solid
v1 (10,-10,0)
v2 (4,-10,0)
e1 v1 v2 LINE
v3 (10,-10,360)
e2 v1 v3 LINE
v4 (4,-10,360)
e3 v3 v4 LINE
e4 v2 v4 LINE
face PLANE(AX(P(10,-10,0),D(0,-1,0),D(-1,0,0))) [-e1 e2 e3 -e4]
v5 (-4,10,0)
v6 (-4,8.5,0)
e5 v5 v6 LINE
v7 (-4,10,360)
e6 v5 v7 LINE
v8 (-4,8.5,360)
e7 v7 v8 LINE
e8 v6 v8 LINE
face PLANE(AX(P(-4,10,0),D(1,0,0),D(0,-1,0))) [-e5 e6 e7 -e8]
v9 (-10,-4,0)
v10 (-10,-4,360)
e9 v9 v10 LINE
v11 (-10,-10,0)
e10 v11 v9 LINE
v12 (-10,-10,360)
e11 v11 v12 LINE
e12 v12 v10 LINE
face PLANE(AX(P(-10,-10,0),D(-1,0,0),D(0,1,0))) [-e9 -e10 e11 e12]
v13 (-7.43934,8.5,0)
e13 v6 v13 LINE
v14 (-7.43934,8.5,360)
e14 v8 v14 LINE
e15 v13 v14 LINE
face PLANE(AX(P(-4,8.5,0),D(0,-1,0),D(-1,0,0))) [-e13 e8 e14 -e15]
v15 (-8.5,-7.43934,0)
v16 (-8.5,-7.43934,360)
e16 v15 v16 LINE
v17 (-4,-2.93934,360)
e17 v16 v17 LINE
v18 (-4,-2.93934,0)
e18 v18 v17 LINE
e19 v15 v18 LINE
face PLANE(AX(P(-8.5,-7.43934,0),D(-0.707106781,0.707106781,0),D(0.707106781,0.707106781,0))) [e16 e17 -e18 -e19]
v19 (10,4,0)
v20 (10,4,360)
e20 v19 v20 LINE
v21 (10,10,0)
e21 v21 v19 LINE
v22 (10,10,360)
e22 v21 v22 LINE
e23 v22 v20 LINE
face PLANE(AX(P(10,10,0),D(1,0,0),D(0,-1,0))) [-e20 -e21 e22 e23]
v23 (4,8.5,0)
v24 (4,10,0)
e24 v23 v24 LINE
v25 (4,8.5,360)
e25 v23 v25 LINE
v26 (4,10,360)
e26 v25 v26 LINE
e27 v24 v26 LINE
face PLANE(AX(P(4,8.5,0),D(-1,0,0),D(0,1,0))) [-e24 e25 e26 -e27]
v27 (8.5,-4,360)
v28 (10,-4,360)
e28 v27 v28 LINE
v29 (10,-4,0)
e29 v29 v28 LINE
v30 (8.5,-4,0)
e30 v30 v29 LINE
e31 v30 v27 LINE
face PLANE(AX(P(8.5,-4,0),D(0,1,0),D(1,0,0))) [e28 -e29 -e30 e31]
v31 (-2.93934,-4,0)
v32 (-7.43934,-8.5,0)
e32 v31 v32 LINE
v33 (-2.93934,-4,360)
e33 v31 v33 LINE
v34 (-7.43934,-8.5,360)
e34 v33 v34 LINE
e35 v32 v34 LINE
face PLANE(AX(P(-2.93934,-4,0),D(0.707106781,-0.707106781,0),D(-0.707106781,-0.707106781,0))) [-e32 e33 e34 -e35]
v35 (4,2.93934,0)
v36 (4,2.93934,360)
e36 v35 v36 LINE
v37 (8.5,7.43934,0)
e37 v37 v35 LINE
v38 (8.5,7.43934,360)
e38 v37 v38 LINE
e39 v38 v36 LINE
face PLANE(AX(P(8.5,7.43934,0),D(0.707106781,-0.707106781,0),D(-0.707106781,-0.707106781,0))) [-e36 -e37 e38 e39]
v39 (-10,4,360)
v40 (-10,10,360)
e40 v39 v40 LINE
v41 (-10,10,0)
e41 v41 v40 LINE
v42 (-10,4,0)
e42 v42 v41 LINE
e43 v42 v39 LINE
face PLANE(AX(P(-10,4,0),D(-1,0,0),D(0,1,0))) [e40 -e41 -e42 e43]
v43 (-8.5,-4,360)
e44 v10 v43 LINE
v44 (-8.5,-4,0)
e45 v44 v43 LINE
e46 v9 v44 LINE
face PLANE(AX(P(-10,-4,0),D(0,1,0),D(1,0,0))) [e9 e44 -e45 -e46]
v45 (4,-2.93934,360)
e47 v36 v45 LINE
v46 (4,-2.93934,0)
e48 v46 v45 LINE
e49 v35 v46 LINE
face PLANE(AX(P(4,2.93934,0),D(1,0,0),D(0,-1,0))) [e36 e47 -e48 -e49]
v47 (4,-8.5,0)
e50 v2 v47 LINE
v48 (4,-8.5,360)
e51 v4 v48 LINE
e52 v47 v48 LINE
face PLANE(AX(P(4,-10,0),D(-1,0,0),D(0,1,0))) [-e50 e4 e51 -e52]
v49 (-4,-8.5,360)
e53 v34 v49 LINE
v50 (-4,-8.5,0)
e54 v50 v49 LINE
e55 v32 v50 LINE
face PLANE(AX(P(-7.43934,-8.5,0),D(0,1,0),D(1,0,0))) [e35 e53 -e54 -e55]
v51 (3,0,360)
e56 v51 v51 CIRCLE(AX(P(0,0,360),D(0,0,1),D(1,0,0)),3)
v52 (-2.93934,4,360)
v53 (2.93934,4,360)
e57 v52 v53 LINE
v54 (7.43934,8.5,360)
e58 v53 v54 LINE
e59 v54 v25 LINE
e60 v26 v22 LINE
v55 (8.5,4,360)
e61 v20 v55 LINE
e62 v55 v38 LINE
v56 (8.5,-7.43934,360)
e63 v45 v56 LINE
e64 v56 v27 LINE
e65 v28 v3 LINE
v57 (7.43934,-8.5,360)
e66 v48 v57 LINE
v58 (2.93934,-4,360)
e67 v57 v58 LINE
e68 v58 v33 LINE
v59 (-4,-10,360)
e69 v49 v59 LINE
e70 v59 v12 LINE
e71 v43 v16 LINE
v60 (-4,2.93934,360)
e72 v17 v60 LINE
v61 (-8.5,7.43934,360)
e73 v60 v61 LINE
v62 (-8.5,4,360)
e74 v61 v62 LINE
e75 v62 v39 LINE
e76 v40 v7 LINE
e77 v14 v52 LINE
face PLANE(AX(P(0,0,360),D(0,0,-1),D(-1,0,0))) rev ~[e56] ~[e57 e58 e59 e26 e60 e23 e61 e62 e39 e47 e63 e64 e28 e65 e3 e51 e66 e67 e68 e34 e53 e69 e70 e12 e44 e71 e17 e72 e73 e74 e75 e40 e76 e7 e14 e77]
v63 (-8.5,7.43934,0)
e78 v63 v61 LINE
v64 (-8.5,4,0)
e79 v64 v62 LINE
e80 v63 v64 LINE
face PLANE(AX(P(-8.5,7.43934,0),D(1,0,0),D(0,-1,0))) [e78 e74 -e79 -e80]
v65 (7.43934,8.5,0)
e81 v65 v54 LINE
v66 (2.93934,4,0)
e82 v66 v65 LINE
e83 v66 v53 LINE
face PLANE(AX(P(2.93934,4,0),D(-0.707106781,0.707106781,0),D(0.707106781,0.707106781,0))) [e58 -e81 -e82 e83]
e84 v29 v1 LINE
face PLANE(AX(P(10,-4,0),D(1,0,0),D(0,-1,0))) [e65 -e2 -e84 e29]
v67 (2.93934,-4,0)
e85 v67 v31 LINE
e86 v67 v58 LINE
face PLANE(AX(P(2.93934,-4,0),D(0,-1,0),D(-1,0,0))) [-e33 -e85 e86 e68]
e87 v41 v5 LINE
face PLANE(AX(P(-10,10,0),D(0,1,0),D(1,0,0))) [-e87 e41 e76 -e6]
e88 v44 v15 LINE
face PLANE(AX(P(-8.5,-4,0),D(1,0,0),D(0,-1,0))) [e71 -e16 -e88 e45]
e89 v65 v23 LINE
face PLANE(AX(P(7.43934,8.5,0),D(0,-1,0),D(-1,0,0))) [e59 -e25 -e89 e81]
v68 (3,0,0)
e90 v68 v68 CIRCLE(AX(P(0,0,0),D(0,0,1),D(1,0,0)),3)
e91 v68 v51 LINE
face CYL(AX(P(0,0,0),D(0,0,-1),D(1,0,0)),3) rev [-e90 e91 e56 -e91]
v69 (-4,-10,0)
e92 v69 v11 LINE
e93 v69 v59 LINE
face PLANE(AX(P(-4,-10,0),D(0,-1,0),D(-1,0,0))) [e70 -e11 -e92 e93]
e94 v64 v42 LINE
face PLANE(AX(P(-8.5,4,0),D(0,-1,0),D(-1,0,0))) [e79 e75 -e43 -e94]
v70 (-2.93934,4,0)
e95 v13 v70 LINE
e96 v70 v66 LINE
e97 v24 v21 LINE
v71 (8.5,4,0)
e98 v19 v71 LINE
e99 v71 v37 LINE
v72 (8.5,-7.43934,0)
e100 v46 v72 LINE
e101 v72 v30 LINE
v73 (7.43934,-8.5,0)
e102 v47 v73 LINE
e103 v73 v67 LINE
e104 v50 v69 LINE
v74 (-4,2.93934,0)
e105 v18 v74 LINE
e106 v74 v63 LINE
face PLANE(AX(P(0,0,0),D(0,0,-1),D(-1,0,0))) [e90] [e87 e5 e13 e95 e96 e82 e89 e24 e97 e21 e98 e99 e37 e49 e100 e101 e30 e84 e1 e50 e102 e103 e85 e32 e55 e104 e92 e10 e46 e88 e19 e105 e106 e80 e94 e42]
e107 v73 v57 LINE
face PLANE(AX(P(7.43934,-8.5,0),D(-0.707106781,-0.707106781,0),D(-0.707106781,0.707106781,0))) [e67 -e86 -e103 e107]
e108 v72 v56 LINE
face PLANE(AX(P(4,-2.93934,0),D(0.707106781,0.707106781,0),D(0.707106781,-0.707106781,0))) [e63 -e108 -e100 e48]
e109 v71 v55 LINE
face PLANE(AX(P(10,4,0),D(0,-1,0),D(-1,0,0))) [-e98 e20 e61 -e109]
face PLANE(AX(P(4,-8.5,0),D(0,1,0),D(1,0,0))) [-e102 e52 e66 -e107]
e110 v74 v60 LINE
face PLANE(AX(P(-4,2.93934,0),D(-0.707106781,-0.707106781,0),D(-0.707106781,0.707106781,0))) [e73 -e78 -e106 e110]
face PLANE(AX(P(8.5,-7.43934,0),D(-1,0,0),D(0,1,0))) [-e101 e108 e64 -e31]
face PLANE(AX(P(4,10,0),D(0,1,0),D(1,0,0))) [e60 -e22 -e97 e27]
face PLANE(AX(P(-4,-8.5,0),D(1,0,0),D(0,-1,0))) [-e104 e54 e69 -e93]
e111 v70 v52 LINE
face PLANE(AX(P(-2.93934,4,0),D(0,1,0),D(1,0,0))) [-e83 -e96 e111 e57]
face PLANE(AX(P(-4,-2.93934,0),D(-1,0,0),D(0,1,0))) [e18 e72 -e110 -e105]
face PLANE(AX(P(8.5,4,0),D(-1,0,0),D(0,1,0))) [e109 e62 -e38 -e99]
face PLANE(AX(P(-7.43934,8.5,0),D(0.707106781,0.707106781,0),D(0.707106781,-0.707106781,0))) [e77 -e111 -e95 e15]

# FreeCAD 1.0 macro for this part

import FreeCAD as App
import Part
import Sketcher
from FreeCAD import Vector
Q = App.Units.Quantity

doc = App.newDocument("Part")
params = doc.addObject("Spreadsheet::Sheet", "Params")
for row, (alias, value) in enumerate([
    ("sketch1_diameter", "6 mm"),
    ("sketch1_width", "6 mm"),
    ("sketch1_width2", "1.5 mm"),
    ("pad1_length", "360 mm"),
], start=1):
    params.set(f"A{row}", alias)
    params.set(f"B{row}", "=" + value)
    params.setAlias(f"B{row}", alias)

body = doc.addObject("PartDesign::Body", "Body")

# Sketch on XY plane
sketch1 = body.newObject("Sketcher::SketchObject", "Sketch")
sketch1.AttachmentSupport = (doc.getObject("XY_Plane"), [""])
sketch1.MapMode = "FlatFace"
sketch1.addGeometry([
    Part.LineSegment(Vector(2.9, 4, 0), Vector(-2.9, 4, 0)),  # 0
    Part.LineSegment(Vector(-2.9, 4, 0), Vector(-7.4, 8.5, 0)),  # 1
    Part.LineSegment(Vector(-7.4, 8.5, 0), Vector(-4, 8.5, 0)),  # 2
    Part.LineSegment(Vector(-4, 8.5, 0), Vector(-4, 10, 0)),  # 3
    Part.LineSegment(Vector(-4, 10, 0), Vector(-10, 10, 0)),  # 4
    Part.LineSegment(Vector(-10, 10, 0), Vector(-10, 4, 0)),  # 5
    Part.LineSegment(Vector(-10, 4, 0), Vector(-8.5, 4, 0)),  # 6
    Part.LineSegment(Vector(-8.5, 4, 0), Vector(-8.5, 7.4, 0)),  # 7
    Part.LineSegment(Vector(-8.5, 7.4, 0), Vector(-4, 2.9, 0)),  # 8
    Part.LineSegment(Vector(-4, 2.9, 0), Vector(-4, -2.9, 0)),  # 9
    Part.LineSegment(Vector(-4, -2.9, 0), Vector(-8.5, -7.4, 0)),  # 10
    Part.LineSegment(Vector(-8.5, -7.4, 0), Vector(-8.5, -4, 0)),  # 11
    Part.LineSegment(Vector(-8.5, -4, 0), Vector(-10, -4, 0)),  # 12
    Part.LineSegment(Vector(-10, -4, 0), Vector(-10, -10, 0)),  # 13
    Part.LineSegment(Vector(-10, -10, 0), Vector(-4, -10, 0)),  # 14
    Part.LineSegment(Vector(-4, -10, 0), Vector(-4, -8.5, 0)),  # 15
    Part.LineSegment(Vector(-4, -8.5, 0), Vector(-7.4, -8.5, 0)),  # 16
    Part.LineSegment(Vector(-7.4, -8.5, 0), Vector(-2.9, -4, 0)),  # 17
    Part.LineSegment(Vector(-2.9, -4, 0), Vector(2.9, -4, 0)),  # 18
    Part.LineSegment(Vector(2.9, -4, 0), Vector(7.4, -8.5, 0)),  # 19
    Part.LineSegment(Vector(7.4, -8.5, 0), Vector(4, -8.5, 0)),  # 20
    Part.LineSegment(Vector(4, -8.5, 0), Vector(4, -10, 0)),  # 21
    Part.LineSegment(Vector(4, -10, 0), Vector(10, -10, 0)),  # 22
    Part.LineSegment(Vector(10, -10, 0), Vector(10, -4, 0)),  # 23
    Part.LineSegment(Vector(10, -4, 0), Vector(8.5, -4, 0)),  # 24
    Part.LineSegment(Vector(8.5, -4, 0), Vector(8.5, -7.4, 0)),  # 25
    Part.LineSegment(Vector(8.5, -7.4, 0), Vector(4, -2.9, 0)),  # 26
    Part.LineSegment(Vector(4, -2.9, 0), Vector(4, 2.9, 0)),  # 27
    Part.LineSegment(Vector(4, 2.9, 0), Vector(8.5, 7.4, 0)),  # 28
    Part.LineSegment(Vector(8.5, 7.4, 0), Vector(8.5, 4, 0)),  # 29
    Part.LineSegment(Vector(8.5, 4, 0), Vector(10, 4, 0)),  # 30
    Part.LineSegment(Vector(10, 4, 0), Vector(10, 10, 0)),  # 31
    Part.LineSegment(Vector(10, 10, 0), Vector(4, 10, 0)),  # 32
    Part.LineSegment(Vector(4, 10, 0), Vector(4, 8.5, 0)),  # 33
    Part.LineSegment(Vector(4, 8.5, 0), Vector(7.4, 8.5, 0)),  # 34
    Part.LineSegment(Vector(7.4, 8.5, 0), Vector(2.9, 4, 0)),  # 35
    Part.Circle(Vector(0, 0, 0), Vector(0, 0, 1), 3),  # 36
], False)
sketch1.addConstraint([
    Sketcher.Constraint("Coincident", 0, 2, 1, 1),
    Sketcher.Constraint("Coincident", 1, 2, 2, 1),
    Sketcher.Constraint("Coincident", 2, 2, 3, 1),
    Sketcher.Constraint("Coincident", 3, 2, 4, 1),
    Sketcher.Constraint("Coincident", 4, 2, 5, 1),
    Sketcher.Constraint("Coincident", 5, 2, 6, 1),
    Sketcher.Constraint("Coincident", 6, 2, 7, 1),
    Sketcher.Constraint("Coincident", 7, 2, 8, 1),
    Sketcher.Constraint("Coincident", 8, 2, 9, 1),
    Sketcher.Constraint("Coincident", 9, 2, 10, 1),
    Sketcher.Constraint("Coincident", 10, 2, 11, 1),
    Sketcher.Constraint("Coincident", 11, 2, 12, 1),
    Sketcher.Constraint("Coincident", 12, 2, 13, 1),
    Sketcher.Constraint("Coincident", 13, 2, 14, 1),
    Sketcher.Constraint("Coincident", 14, 2, 15, 1),
    Sketcher.Constraint("Coincident", 15, 2, 16, 1),
    Sketcher.Constraint("Coincident", 16, 2, 17, 1),
    Sketcher.Constraint("Coincident", 17, 2, 18, 1),
    Sketcher.Constraint("Coincident", 18, 2, 19, 1),
    Sketcher.Constraint("Coincident", 19, 2, 20, 1),
    Sketcher.Constraint("Coincident", 20, 2, 21, 1),
    Sketcher.Constraint("Coincident", 21, 2, 22, 1),
    Sketcher.Constraint("Coincident", 22, 2, 23, 1),
    Sketcher.Constraint("Coincident", 23, 2, 24, 1),
    Sketcher.Constraint("Coincident", 24, 2, 25, 1),
    Sketcher.Constraint("Coincident", 25, 2, 26, 1),
    Sketcher.Constraint("Coincident", 26, 2, 27, 1),
    Sketcher.Constraint("Coincident", 27, 2, 28, 1),
    Sketcher.Constraint("Coincident", 28, 2, 29, 1),
    Sketcher.Constraint("Coincident", 29, 2, 30, 1),
    Sketcher.Constraint("Coincident", 30, 2, 31, 1),
    Sketcher.Constraint("Coincident", 31, 2, 32, 1),
    Sketcher.Constraint("Coincident", 32, 2, 33, 1),
    Sketcher.Constraint("Coincident", 33, 2, 34, 1),
    Sketcher.Constraint("Coincident", 34, 2, 35, 1),
    Sketcher.Constraint("Coincident", 35, 2, 0, 1),
    Sketcher.Constraint("Horizontal", 0),
    Sketcher.Constraint("Horizontal", 2),
    Sketcher.Constraint("Vertical", 3),
    Sketcher.Constraint("Horizontal", 4),
    Sketcher.Constraint("Vertical", 5),
    Sketcher.Constraint("Horizontal", 6),
    Sketcher.Constraint("Vertical", 7),
    Sketcher.Constraint("Vertical", 9),
    Sketcher.Constraint("Vertical", 11),
    Sketcher.Constraint("Horizontal", 12),
    Sketcher.Constraint("Vertical", 13),
    Sketcher.Constraint("Horizontal", 14),
    Sketcher.Constraint("Vertical", 15),
    Sketcher.Constraint("Horizontal", 16),
    Sketcher.Constraint("Horizontal", 18),
    Sketcher.Constraint("Horizontal", 20),
    Sketcher.Constraint("Vertical", 21),
    Sketcher.Constraint("Horizontal", 22),
    Sketcher.Constraint("Vertical", 23),
    Sketcher.Constraint("Horizontal", 24),
    Sketcher.Constraint("Vertical", 25),
    Sketcher.Constraint("Vertical", 27),
    Sketcher.Constraint("Vertical", 29),
    Sketcher.Constraint("Horizontal", 30),
    Sketcher.Constraint("Vertical", 31),
    Sketcher.Constraint("Horizontal", 32),
    Sketcher.Constraint("Vertical", 33),
    Sketcher.Constraint("Horizontal", 34),
    Sketcher.Constraint("Coincident", 36, 3, -1, 1),
    Sketcher.Constraint("Symmetric", 0, 2, 18, 2, -1, 1),
    Sketcher.Constraint("Symmetric", 1, 2, 19, 2, -1, 1),
    Sketcher.Constraint("Symmetric", 3, 2, 21, 2, -1, 1),
    Sketcher.Constraint("Symmetric", 5, 2, 23, 2, -1, 1),
    Sketcher.Constraint("Symmetric", 7, 2, 25, 2, -1, 1),
    Sketcher.Constraint("Symmetric", 8, 2, 26, 2, -1, 1),
    Sketcher.Constraint("Symmetric", 10, 2, 28, 2, -1, 1),
    Sketcher.Constraint("Symmetric", 12, 2, 30, 2, -1, 1),
    Sketcher.Constraint("Symmetric", 14, 2, 32, 2, -1, 1),
    Sketcher.Constraint("Symmetric", 16, 2, 34, 2, -1, 1),
    Sketcher.Constraint("Symmetric", 16, 2, 19, 2, -2),
    Sketcher.Constraint("Symmetric", 14, 2, 21, 2, -2),
    Sketcher.Constraint("Symmetric", 12, 2, 23, 2, -2),
    Sketcher.Constraint("Symmetric", 10, 2, 25, 2, -2),
    Sketcher.Constraint("Parallel", 1, 8),
    Sketcher.Constraint("Perpendicular", 8, 10),
    Sketcher.Constraint("Parallel", 10, 17),
    Sketcher.Constraint("Perpendicular", 26, 28),
    Sketcher.Constraint("Parallel", 28, 35),
    Sketcher.Constraint("Horizontal", 0, 2, 5, 2),
    Sketcher.Constraint("Horizontal", 9, 2, 26, 2),
    Sketcher.Constraint("Vertical", 3, 2, 8, 2),
    Sketcher.Constraint("Equal", 30, 3),
    Sketcher.Constraint("Equal", 32, 5),
    Sketcher.Constraint("Equal", 34, 7),
    Sketcher.Constraint("Equal", 18, 9),
    Sketcher.Constraint("Diameter", 36, Q("6 mm")),
    Sketcher.Constraint("DistanceX", 4, 2, 4, 1, Q("6 mm")),
    Sketcher.Constraint("DistanceX", 6, 1, 6, 2, Q("1.5 mm")),
    Sketcher.Constraint("DistanceY", -1, 1, 0, 2, Q("4 mm")),
    Sketcher.Constraint("DistanceX", 0, 2, 0, 1, Q("5.87868 mm")),
])
sketch1.setExpression("Constraints[91]", "Params.sketch1_diameter")
sketch1.setExpression("Constraints[92]", "Params.sketch1_width")
sketch1.setExpression("Constraints[93]", "Params.sketch1_width2")
pad1 = body.newObject("PartDesign::Pad", "Pad")
pad1.Profile = sketch1
pad1.setExpression("Length", "Params.pad1_length")

doc.recompute()
